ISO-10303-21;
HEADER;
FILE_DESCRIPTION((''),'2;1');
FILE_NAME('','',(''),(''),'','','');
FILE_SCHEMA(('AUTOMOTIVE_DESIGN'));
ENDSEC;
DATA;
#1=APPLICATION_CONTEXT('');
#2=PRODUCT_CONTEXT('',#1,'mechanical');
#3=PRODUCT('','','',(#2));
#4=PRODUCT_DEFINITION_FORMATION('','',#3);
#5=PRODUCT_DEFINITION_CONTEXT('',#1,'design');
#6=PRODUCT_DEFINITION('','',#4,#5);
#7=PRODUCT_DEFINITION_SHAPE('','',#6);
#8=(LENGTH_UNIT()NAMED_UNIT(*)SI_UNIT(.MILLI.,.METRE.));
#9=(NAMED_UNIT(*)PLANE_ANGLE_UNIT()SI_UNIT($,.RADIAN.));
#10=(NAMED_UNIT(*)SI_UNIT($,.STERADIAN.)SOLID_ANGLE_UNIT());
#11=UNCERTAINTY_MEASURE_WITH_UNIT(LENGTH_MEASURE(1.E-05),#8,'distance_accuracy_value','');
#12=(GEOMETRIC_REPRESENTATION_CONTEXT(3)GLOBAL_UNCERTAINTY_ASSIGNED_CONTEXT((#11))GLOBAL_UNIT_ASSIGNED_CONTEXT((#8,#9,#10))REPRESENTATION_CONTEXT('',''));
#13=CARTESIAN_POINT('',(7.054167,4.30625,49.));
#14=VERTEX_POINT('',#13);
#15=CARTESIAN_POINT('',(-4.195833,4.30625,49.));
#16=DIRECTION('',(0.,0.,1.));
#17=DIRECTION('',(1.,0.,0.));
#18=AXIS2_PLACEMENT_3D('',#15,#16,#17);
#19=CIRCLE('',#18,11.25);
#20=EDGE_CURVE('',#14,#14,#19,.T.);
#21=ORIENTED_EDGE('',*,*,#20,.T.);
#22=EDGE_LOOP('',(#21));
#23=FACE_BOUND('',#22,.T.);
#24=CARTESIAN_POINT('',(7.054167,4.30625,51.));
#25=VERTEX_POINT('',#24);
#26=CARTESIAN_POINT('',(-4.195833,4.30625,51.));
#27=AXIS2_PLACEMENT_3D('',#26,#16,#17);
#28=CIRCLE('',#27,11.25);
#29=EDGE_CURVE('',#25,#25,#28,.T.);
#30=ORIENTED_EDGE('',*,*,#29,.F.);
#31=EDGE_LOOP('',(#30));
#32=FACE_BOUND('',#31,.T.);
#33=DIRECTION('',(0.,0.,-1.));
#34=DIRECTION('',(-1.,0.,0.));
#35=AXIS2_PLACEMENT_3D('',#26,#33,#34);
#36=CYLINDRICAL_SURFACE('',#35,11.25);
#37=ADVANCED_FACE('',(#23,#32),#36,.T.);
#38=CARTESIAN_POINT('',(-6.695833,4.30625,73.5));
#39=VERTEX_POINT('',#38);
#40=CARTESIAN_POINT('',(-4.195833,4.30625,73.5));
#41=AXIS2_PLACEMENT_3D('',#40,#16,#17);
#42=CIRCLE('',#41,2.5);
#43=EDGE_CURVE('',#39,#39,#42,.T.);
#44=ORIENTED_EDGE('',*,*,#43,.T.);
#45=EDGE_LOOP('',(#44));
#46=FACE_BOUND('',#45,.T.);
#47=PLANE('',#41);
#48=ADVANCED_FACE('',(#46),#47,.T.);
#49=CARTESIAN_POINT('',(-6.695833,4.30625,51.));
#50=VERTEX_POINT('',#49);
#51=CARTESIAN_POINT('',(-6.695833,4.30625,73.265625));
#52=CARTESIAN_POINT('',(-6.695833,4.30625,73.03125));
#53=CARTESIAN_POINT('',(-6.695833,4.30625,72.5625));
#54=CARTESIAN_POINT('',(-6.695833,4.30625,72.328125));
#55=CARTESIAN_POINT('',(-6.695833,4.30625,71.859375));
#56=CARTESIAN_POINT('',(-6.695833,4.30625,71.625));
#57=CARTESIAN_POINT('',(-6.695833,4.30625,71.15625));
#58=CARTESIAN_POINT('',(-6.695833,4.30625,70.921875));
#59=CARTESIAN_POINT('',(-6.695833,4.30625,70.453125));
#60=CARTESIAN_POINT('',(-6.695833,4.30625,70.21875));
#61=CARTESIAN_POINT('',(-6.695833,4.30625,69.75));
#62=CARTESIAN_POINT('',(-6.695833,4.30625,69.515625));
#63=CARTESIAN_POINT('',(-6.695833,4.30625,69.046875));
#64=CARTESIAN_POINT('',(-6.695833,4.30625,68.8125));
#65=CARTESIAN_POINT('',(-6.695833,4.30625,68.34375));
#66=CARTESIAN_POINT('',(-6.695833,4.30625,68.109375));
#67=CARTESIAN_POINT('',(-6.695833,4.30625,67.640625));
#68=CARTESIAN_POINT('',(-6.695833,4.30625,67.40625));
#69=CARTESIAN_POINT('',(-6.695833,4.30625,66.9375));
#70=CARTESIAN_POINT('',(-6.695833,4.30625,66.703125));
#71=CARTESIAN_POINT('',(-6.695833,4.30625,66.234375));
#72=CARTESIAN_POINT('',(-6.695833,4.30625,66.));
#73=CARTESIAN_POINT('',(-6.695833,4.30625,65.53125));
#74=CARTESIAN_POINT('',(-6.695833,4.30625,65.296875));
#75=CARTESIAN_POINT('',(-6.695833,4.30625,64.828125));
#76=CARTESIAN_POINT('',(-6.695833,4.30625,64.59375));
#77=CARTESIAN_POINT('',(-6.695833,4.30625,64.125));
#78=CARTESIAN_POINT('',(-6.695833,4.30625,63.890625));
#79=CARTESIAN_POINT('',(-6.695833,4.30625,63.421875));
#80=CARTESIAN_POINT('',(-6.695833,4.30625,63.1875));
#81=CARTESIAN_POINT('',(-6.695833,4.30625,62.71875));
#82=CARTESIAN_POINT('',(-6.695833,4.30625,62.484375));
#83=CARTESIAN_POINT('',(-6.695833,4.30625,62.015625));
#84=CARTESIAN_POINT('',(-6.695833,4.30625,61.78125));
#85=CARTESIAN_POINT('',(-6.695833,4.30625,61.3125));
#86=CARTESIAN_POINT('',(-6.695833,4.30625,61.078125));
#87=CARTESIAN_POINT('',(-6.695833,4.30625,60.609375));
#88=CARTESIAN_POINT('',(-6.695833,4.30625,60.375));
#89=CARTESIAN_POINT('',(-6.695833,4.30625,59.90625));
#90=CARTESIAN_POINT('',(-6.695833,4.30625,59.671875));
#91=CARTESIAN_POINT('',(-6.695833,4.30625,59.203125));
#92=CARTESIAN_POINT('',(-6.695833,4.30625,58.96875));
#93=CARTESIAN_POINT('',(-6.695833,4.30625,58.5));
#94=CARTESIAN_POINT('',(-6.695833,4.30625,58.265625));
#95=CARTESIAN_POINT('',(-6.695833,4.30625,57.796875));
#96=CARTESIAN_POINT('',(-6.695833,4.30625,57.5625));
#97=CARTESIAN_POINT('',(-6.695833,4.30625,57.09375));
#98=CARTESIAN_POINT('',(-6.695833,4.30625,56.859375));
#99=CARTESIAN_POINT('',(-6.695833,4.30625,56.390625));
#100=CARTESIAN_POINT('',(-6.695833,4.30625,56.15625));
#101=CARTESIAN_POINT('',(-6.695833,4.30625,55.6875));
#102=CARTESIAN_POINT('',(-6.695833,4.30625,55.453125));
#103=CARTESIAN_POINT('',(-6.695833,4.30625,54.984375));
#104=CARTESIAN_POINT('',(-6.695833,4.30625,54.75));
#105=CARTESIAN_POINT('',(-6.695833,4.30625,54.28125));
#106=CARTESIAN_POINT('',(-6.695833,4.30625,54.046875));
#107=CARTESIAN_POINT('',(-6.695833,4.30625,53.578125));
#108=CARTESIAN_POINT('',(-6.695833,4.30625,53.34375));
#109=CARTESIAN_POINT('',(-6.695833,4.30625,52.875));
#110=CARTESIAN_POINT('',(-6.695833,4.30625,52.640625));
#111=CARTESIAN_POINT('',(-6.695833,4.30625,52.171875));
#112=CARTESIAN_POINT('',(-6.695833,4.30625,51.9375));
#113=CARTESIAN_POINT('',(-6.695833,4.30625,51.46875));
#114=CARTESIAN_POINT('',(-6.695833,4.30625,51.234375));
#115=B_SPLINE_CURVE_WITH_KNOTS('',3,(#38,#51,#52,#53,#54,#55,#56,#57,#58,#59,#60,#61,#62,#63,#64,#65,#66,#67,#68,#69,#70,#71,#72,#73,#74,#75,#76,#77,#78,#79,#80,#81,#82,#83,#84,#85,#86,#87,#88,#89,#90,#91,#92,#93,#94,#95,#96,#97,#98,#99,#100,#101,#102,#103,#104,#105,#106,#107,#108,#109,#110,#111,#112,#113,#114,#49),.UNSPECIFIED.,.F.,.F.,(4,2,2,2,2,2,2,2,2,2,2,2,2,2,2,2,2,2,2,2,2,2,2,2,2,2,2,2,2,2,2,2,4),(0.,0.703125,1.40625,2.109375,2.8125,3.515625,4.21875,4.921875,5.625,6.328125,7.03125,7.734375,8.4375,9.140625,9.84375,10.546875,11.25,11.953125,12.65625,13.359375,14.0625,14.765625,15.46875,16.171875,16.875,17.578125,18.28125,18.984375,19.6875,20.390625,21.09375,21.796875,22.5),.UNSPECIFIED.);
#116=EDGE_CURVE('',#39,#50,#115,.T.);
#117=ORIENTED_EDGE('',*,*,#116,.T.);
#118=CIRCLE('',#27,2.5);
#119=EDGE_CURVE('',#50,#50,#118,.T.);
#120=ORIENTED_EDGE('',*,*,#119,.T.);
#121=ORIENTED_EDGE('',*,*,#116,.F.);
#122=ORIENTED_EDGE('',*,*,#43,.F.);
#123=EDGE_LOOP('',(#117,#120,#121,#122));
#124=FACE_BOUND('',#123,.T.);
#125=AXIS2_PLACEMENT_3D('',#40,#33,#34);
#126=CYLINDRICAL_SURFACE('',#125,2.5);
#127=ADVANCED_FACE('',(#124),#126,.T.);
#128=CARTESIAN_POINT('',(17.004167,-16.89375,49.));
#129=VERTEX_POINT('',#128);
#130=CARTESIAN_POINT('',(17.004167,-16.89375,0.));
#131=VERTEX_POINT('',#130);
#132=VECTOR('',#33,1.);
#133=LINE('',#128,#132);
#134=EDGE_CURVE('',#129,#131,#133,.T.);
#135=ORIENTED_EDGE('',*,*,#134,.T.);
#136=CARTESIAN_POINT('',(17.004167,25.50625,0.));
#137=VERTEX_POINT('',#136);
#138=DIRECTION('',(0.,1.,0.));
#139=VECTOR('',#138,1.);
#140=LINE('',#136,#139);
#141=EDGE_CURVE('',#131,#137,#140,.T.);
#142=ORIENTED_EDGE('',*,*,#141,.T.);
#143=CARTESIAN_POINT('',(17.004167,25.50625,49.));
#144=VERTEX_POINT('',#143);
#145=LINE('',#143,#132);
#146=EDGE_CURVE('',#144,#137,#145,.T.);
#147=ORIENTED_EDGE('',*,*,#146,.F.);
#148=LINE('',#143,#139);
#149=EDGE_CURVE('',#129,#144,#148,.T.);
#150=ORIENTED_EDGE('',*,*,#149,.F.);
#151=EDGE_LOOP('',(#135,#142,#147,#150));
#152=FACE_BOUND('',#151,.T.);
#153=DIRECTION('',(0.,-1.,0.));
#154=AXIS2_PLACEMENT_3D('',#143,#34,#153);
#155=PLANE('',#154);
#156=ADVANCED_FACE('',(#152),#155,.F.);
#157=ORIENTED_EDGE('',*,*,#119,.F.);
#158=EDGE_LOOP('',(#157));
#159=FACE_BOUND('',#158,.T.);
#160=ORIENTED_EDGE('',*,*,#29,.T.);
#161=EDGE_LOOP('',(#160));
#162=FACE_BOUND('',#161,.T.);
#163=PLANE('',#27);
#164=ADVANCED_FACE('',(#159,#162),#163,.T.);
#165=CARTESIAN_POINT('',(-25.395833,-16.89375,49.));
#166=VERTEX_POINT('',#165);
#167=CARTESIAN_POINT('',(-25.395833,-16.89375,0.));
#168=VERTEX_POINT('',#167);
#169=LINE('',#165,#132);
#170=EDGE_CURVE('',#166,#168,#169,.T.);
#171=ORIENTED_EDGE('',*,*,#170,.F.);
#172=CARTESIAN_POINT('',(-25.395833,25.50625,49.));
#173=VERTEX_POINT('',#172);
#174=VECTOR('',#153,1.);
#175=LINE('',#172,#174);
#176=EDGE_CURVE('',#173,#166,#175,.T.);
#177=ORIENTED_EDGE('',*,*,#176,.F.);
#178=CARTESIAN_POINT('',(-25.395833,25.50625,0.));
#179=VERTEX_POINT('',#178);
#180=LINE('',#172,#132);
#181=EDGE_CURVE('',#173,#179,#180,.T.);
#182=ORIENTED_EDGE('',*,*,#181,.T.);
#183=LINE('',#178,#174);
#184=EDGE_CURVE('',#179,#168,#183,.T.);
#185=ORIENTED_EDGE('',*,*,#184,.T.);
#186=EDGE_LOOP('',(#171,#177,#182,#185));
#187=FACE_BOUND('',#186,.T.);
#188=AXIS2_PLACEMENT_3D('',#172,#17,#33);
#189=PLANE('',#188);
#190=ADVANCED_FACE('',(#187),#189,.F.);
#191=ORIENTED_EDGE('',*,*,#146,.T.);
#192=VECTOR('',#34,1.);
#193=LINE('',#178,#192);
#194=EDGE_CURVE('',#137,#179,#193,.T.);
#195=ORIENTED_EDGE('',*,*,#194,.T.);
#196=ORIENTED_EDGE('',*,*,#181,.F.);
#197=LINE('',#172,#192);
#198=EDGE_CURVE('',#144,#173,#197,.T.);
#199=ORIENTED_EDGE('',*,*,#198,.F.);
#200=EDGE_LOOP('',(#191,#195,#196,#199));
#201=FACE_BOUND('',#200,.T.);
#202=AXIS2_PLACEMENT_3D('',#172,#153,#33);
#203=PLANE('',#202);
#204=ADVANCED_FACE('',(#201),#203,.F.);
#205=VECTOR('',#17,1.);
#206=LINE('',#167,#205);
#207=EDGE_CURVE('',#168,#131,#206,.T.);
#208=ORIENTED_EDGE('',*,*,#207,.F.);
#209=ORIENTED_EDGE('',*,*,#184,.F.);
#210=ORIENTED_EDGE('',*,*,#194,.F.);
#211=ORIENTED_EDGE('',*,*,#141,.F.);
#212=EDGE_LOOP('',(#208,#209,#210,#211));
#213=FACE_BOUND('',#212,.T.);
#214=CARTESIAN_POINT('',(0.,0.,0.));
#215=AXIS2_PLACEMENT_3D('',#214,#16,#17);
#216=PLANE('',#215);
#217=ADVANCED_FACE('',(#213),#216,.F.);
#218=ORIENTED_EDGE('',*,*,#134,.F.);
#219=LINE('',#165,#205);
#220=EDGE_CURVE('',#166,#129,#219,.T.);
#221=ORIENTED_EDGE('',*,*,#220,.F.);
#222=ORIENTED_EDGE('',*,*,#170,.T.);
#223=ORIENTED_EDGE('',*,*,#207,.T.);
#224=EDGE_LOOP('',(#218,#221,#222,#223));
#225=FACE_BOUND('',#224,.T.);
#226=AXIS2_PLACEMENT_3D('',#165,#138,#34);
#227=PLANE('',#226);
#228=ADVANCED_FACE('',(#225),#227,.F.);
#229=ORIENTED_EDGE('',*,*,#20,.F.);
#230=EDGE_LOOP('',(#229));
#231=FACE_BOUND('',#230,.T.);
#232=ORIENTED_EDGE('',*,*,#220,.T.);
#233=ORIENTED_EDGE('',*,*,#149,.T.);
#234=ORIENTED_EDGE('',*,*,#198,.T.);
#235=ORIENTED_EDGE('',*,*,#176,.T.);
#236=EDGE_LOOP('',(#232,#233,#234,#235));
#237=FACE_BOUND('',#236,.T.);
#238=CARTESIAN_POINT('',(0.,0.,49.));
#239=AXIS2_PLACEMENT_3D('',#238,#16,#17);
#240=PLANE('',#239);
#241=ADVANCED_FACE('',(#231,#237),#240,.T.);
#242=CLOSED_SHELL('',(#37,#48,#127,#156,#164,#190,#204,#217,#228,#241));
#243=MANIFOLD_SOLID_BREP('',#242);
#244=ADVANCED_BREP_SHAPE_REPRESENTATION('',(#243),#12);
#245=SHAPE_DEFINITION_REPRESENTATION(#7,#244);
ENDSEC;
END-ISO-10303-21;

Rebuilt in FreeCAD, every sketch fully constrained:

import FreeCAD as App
import Part
import Sketcher
from FreeCAD import Vector
Q = App.Units.Quantity

doc = App.newDocument("Part")
params = doc.addObject("Spreadsheet::Sheet", "Params")
for row, (alias, value) in enumerate([
    ("sketch1_width", "42.4 mm"),
    ("pad1_length", "49 mm"),
    ("sketch2_diameter", "22.5 mm"),
    ("pad2_length", "2 mm"),
    ("sketch3_diameter", "5 mm"),
    ("pad3_length", "22.5 mm"),
], start=1):
    params.set(f"A{row}", alias)
    params.set(f"B{row}", "=" + value)
    params.setAlias(f"B{row}", alias)

body = doc.addObject("PartDesign::Body", "Body")

sketch1 = doc.addObject("Sketcher::SketchObject", "Sketch")
body.addObject(sketch1)
sketch1.AttachmentSupport = (doc.XY_Plane, [""])
sketch1.MapMode = "FlatFace"
sketch1.addGeometry([
    Part.LineSegment(Vector(-25.395833, 25.50625, 0), Vector(-25.395833, -16.89375, 0)),
    Part.LineSegment(Vector(-25.395833, -16.89375, 0), Vector(17.004167, -16.89375, 0)),
    Part.LineSegment(Vector(17.004167, -16.89375, 0), Vector(17.004167, 25.50625, 0)),
    Part.LineSegment(Vector(17.004167, 25.50625, 0), Vector(-25.395833, 25.50625, 0)),
], False)
sketch1.addConstraint([
    Sketcher.Constraint("Coincident", 0, 2, 1, 1),
    Sketcher.Constraint("Coincident", 1, 2, 2, 1),
    Sketcher.Constraint("Coincident", 2, 2, 3, 1),
    Sketcher.Constraint("Coincident", 3, 2, 0, 1),
    Sketcher.Constraint("Vertical", 0),
    Sketcher.Constraint("Horizontal", 1),
    Sketcher.Constraint("Vertical", 2),
    Sketcher.Constraint("Horizontal", 3),
    Sketcher.Constraint("Equal", 3, 0),
    Sketcher.Constraint("DistanceX", 1, 1, 1, 2, Q("42.4 mm")),
    Sketcher.Constraint("DistanceY", 0, 2, -1, 1, Q("16.89375 mm")),
    Sketcher.Constraint("DistanceX", 0, 2, -1, 1, Q("25.395833 mm")),
])
sketch1.setExpression("Constraints[9]", "Params.sketch1_width")
pad1 = doc.addObject("PartDesign::Pad", "Pad")
body.addObject(pad1)
pad1.Profile = sketch1
pad1.setExpression("Length", "Params.pad1_length")

sketch2 = doc.addObject("Sketcher::SketchObject", "Sketch001")
body.addObject(sketch2)
sketch2.AttachmentSupport = (doc.XY_Plane, [""])
sketch2.MapMode = "FlatFace"
sketch2.AttachmentOffset = App.Placement(Vector(0, 0, 49), App.Rotation())
sketch2.addGeometry(Part.Circle(Vector(-4.195833, 4.30625, 0), Vector(0, 0, 1), 11.25), False)
sketch2.addConstraint([
    Sketcher.Constraint("Diameter", 0, Q("22.5 mm")),
    Sketcher.Constraint("DistanceY", -1, 1, 0, 3, Q("4.30625 mm")),
    Sketcher.Constraint("DistanceX", 0, 3, -1, 1, Q("4.195833 mm")),
])
sketch2.setExpression("Constraints[0]", "Params.sketch2_diameter")
pad2 = doc.addObject("PartDesign::Pad", "Pad001")
body.addObject(pad2)
pad2.Profile = sketch2
pad2.setExpression("Length", "Params.pad2_length")

sketch3 = doc.addObject("Sketcher::SketchObject", "Sketch002")
body.addObject(sketch3)
sketch3.AttachmentSupport = (doc.XY_Plane, [""])
sketch3.MapMode = "FlatFace"
sketch3.AttachmentOffset = App.Placement(Vector(0, 0, 51), App.Rotation())
sketch3.addGeometry(Part.Circle(Vector(-4.195833, 4.30625, 0), Vector(0, 0, 1), 2.5), False)
sketch3.addConstraint([
    Sketcher.Constraint("Diameter", 0, Q("5 mm")),
    Sketcher.Constraint("DistanceY", -1, 1, 0, 3, Q("4.30625 mm")),
    Sketcher.Constraint("DistanceX", 0, 3, -1, 1, Q("4.195833 mm")),
])
sketch3.setExpression("Constraints[0]", "Params.sketch3_diameter")
pad3 = doc.addObject("PartDesign::Pad", "Pad002")
body.addObject(pad3)
pad3.Profile = sketch3
pad3.setExpression("Length", "Params.pad3_length")

doc.recompute()
